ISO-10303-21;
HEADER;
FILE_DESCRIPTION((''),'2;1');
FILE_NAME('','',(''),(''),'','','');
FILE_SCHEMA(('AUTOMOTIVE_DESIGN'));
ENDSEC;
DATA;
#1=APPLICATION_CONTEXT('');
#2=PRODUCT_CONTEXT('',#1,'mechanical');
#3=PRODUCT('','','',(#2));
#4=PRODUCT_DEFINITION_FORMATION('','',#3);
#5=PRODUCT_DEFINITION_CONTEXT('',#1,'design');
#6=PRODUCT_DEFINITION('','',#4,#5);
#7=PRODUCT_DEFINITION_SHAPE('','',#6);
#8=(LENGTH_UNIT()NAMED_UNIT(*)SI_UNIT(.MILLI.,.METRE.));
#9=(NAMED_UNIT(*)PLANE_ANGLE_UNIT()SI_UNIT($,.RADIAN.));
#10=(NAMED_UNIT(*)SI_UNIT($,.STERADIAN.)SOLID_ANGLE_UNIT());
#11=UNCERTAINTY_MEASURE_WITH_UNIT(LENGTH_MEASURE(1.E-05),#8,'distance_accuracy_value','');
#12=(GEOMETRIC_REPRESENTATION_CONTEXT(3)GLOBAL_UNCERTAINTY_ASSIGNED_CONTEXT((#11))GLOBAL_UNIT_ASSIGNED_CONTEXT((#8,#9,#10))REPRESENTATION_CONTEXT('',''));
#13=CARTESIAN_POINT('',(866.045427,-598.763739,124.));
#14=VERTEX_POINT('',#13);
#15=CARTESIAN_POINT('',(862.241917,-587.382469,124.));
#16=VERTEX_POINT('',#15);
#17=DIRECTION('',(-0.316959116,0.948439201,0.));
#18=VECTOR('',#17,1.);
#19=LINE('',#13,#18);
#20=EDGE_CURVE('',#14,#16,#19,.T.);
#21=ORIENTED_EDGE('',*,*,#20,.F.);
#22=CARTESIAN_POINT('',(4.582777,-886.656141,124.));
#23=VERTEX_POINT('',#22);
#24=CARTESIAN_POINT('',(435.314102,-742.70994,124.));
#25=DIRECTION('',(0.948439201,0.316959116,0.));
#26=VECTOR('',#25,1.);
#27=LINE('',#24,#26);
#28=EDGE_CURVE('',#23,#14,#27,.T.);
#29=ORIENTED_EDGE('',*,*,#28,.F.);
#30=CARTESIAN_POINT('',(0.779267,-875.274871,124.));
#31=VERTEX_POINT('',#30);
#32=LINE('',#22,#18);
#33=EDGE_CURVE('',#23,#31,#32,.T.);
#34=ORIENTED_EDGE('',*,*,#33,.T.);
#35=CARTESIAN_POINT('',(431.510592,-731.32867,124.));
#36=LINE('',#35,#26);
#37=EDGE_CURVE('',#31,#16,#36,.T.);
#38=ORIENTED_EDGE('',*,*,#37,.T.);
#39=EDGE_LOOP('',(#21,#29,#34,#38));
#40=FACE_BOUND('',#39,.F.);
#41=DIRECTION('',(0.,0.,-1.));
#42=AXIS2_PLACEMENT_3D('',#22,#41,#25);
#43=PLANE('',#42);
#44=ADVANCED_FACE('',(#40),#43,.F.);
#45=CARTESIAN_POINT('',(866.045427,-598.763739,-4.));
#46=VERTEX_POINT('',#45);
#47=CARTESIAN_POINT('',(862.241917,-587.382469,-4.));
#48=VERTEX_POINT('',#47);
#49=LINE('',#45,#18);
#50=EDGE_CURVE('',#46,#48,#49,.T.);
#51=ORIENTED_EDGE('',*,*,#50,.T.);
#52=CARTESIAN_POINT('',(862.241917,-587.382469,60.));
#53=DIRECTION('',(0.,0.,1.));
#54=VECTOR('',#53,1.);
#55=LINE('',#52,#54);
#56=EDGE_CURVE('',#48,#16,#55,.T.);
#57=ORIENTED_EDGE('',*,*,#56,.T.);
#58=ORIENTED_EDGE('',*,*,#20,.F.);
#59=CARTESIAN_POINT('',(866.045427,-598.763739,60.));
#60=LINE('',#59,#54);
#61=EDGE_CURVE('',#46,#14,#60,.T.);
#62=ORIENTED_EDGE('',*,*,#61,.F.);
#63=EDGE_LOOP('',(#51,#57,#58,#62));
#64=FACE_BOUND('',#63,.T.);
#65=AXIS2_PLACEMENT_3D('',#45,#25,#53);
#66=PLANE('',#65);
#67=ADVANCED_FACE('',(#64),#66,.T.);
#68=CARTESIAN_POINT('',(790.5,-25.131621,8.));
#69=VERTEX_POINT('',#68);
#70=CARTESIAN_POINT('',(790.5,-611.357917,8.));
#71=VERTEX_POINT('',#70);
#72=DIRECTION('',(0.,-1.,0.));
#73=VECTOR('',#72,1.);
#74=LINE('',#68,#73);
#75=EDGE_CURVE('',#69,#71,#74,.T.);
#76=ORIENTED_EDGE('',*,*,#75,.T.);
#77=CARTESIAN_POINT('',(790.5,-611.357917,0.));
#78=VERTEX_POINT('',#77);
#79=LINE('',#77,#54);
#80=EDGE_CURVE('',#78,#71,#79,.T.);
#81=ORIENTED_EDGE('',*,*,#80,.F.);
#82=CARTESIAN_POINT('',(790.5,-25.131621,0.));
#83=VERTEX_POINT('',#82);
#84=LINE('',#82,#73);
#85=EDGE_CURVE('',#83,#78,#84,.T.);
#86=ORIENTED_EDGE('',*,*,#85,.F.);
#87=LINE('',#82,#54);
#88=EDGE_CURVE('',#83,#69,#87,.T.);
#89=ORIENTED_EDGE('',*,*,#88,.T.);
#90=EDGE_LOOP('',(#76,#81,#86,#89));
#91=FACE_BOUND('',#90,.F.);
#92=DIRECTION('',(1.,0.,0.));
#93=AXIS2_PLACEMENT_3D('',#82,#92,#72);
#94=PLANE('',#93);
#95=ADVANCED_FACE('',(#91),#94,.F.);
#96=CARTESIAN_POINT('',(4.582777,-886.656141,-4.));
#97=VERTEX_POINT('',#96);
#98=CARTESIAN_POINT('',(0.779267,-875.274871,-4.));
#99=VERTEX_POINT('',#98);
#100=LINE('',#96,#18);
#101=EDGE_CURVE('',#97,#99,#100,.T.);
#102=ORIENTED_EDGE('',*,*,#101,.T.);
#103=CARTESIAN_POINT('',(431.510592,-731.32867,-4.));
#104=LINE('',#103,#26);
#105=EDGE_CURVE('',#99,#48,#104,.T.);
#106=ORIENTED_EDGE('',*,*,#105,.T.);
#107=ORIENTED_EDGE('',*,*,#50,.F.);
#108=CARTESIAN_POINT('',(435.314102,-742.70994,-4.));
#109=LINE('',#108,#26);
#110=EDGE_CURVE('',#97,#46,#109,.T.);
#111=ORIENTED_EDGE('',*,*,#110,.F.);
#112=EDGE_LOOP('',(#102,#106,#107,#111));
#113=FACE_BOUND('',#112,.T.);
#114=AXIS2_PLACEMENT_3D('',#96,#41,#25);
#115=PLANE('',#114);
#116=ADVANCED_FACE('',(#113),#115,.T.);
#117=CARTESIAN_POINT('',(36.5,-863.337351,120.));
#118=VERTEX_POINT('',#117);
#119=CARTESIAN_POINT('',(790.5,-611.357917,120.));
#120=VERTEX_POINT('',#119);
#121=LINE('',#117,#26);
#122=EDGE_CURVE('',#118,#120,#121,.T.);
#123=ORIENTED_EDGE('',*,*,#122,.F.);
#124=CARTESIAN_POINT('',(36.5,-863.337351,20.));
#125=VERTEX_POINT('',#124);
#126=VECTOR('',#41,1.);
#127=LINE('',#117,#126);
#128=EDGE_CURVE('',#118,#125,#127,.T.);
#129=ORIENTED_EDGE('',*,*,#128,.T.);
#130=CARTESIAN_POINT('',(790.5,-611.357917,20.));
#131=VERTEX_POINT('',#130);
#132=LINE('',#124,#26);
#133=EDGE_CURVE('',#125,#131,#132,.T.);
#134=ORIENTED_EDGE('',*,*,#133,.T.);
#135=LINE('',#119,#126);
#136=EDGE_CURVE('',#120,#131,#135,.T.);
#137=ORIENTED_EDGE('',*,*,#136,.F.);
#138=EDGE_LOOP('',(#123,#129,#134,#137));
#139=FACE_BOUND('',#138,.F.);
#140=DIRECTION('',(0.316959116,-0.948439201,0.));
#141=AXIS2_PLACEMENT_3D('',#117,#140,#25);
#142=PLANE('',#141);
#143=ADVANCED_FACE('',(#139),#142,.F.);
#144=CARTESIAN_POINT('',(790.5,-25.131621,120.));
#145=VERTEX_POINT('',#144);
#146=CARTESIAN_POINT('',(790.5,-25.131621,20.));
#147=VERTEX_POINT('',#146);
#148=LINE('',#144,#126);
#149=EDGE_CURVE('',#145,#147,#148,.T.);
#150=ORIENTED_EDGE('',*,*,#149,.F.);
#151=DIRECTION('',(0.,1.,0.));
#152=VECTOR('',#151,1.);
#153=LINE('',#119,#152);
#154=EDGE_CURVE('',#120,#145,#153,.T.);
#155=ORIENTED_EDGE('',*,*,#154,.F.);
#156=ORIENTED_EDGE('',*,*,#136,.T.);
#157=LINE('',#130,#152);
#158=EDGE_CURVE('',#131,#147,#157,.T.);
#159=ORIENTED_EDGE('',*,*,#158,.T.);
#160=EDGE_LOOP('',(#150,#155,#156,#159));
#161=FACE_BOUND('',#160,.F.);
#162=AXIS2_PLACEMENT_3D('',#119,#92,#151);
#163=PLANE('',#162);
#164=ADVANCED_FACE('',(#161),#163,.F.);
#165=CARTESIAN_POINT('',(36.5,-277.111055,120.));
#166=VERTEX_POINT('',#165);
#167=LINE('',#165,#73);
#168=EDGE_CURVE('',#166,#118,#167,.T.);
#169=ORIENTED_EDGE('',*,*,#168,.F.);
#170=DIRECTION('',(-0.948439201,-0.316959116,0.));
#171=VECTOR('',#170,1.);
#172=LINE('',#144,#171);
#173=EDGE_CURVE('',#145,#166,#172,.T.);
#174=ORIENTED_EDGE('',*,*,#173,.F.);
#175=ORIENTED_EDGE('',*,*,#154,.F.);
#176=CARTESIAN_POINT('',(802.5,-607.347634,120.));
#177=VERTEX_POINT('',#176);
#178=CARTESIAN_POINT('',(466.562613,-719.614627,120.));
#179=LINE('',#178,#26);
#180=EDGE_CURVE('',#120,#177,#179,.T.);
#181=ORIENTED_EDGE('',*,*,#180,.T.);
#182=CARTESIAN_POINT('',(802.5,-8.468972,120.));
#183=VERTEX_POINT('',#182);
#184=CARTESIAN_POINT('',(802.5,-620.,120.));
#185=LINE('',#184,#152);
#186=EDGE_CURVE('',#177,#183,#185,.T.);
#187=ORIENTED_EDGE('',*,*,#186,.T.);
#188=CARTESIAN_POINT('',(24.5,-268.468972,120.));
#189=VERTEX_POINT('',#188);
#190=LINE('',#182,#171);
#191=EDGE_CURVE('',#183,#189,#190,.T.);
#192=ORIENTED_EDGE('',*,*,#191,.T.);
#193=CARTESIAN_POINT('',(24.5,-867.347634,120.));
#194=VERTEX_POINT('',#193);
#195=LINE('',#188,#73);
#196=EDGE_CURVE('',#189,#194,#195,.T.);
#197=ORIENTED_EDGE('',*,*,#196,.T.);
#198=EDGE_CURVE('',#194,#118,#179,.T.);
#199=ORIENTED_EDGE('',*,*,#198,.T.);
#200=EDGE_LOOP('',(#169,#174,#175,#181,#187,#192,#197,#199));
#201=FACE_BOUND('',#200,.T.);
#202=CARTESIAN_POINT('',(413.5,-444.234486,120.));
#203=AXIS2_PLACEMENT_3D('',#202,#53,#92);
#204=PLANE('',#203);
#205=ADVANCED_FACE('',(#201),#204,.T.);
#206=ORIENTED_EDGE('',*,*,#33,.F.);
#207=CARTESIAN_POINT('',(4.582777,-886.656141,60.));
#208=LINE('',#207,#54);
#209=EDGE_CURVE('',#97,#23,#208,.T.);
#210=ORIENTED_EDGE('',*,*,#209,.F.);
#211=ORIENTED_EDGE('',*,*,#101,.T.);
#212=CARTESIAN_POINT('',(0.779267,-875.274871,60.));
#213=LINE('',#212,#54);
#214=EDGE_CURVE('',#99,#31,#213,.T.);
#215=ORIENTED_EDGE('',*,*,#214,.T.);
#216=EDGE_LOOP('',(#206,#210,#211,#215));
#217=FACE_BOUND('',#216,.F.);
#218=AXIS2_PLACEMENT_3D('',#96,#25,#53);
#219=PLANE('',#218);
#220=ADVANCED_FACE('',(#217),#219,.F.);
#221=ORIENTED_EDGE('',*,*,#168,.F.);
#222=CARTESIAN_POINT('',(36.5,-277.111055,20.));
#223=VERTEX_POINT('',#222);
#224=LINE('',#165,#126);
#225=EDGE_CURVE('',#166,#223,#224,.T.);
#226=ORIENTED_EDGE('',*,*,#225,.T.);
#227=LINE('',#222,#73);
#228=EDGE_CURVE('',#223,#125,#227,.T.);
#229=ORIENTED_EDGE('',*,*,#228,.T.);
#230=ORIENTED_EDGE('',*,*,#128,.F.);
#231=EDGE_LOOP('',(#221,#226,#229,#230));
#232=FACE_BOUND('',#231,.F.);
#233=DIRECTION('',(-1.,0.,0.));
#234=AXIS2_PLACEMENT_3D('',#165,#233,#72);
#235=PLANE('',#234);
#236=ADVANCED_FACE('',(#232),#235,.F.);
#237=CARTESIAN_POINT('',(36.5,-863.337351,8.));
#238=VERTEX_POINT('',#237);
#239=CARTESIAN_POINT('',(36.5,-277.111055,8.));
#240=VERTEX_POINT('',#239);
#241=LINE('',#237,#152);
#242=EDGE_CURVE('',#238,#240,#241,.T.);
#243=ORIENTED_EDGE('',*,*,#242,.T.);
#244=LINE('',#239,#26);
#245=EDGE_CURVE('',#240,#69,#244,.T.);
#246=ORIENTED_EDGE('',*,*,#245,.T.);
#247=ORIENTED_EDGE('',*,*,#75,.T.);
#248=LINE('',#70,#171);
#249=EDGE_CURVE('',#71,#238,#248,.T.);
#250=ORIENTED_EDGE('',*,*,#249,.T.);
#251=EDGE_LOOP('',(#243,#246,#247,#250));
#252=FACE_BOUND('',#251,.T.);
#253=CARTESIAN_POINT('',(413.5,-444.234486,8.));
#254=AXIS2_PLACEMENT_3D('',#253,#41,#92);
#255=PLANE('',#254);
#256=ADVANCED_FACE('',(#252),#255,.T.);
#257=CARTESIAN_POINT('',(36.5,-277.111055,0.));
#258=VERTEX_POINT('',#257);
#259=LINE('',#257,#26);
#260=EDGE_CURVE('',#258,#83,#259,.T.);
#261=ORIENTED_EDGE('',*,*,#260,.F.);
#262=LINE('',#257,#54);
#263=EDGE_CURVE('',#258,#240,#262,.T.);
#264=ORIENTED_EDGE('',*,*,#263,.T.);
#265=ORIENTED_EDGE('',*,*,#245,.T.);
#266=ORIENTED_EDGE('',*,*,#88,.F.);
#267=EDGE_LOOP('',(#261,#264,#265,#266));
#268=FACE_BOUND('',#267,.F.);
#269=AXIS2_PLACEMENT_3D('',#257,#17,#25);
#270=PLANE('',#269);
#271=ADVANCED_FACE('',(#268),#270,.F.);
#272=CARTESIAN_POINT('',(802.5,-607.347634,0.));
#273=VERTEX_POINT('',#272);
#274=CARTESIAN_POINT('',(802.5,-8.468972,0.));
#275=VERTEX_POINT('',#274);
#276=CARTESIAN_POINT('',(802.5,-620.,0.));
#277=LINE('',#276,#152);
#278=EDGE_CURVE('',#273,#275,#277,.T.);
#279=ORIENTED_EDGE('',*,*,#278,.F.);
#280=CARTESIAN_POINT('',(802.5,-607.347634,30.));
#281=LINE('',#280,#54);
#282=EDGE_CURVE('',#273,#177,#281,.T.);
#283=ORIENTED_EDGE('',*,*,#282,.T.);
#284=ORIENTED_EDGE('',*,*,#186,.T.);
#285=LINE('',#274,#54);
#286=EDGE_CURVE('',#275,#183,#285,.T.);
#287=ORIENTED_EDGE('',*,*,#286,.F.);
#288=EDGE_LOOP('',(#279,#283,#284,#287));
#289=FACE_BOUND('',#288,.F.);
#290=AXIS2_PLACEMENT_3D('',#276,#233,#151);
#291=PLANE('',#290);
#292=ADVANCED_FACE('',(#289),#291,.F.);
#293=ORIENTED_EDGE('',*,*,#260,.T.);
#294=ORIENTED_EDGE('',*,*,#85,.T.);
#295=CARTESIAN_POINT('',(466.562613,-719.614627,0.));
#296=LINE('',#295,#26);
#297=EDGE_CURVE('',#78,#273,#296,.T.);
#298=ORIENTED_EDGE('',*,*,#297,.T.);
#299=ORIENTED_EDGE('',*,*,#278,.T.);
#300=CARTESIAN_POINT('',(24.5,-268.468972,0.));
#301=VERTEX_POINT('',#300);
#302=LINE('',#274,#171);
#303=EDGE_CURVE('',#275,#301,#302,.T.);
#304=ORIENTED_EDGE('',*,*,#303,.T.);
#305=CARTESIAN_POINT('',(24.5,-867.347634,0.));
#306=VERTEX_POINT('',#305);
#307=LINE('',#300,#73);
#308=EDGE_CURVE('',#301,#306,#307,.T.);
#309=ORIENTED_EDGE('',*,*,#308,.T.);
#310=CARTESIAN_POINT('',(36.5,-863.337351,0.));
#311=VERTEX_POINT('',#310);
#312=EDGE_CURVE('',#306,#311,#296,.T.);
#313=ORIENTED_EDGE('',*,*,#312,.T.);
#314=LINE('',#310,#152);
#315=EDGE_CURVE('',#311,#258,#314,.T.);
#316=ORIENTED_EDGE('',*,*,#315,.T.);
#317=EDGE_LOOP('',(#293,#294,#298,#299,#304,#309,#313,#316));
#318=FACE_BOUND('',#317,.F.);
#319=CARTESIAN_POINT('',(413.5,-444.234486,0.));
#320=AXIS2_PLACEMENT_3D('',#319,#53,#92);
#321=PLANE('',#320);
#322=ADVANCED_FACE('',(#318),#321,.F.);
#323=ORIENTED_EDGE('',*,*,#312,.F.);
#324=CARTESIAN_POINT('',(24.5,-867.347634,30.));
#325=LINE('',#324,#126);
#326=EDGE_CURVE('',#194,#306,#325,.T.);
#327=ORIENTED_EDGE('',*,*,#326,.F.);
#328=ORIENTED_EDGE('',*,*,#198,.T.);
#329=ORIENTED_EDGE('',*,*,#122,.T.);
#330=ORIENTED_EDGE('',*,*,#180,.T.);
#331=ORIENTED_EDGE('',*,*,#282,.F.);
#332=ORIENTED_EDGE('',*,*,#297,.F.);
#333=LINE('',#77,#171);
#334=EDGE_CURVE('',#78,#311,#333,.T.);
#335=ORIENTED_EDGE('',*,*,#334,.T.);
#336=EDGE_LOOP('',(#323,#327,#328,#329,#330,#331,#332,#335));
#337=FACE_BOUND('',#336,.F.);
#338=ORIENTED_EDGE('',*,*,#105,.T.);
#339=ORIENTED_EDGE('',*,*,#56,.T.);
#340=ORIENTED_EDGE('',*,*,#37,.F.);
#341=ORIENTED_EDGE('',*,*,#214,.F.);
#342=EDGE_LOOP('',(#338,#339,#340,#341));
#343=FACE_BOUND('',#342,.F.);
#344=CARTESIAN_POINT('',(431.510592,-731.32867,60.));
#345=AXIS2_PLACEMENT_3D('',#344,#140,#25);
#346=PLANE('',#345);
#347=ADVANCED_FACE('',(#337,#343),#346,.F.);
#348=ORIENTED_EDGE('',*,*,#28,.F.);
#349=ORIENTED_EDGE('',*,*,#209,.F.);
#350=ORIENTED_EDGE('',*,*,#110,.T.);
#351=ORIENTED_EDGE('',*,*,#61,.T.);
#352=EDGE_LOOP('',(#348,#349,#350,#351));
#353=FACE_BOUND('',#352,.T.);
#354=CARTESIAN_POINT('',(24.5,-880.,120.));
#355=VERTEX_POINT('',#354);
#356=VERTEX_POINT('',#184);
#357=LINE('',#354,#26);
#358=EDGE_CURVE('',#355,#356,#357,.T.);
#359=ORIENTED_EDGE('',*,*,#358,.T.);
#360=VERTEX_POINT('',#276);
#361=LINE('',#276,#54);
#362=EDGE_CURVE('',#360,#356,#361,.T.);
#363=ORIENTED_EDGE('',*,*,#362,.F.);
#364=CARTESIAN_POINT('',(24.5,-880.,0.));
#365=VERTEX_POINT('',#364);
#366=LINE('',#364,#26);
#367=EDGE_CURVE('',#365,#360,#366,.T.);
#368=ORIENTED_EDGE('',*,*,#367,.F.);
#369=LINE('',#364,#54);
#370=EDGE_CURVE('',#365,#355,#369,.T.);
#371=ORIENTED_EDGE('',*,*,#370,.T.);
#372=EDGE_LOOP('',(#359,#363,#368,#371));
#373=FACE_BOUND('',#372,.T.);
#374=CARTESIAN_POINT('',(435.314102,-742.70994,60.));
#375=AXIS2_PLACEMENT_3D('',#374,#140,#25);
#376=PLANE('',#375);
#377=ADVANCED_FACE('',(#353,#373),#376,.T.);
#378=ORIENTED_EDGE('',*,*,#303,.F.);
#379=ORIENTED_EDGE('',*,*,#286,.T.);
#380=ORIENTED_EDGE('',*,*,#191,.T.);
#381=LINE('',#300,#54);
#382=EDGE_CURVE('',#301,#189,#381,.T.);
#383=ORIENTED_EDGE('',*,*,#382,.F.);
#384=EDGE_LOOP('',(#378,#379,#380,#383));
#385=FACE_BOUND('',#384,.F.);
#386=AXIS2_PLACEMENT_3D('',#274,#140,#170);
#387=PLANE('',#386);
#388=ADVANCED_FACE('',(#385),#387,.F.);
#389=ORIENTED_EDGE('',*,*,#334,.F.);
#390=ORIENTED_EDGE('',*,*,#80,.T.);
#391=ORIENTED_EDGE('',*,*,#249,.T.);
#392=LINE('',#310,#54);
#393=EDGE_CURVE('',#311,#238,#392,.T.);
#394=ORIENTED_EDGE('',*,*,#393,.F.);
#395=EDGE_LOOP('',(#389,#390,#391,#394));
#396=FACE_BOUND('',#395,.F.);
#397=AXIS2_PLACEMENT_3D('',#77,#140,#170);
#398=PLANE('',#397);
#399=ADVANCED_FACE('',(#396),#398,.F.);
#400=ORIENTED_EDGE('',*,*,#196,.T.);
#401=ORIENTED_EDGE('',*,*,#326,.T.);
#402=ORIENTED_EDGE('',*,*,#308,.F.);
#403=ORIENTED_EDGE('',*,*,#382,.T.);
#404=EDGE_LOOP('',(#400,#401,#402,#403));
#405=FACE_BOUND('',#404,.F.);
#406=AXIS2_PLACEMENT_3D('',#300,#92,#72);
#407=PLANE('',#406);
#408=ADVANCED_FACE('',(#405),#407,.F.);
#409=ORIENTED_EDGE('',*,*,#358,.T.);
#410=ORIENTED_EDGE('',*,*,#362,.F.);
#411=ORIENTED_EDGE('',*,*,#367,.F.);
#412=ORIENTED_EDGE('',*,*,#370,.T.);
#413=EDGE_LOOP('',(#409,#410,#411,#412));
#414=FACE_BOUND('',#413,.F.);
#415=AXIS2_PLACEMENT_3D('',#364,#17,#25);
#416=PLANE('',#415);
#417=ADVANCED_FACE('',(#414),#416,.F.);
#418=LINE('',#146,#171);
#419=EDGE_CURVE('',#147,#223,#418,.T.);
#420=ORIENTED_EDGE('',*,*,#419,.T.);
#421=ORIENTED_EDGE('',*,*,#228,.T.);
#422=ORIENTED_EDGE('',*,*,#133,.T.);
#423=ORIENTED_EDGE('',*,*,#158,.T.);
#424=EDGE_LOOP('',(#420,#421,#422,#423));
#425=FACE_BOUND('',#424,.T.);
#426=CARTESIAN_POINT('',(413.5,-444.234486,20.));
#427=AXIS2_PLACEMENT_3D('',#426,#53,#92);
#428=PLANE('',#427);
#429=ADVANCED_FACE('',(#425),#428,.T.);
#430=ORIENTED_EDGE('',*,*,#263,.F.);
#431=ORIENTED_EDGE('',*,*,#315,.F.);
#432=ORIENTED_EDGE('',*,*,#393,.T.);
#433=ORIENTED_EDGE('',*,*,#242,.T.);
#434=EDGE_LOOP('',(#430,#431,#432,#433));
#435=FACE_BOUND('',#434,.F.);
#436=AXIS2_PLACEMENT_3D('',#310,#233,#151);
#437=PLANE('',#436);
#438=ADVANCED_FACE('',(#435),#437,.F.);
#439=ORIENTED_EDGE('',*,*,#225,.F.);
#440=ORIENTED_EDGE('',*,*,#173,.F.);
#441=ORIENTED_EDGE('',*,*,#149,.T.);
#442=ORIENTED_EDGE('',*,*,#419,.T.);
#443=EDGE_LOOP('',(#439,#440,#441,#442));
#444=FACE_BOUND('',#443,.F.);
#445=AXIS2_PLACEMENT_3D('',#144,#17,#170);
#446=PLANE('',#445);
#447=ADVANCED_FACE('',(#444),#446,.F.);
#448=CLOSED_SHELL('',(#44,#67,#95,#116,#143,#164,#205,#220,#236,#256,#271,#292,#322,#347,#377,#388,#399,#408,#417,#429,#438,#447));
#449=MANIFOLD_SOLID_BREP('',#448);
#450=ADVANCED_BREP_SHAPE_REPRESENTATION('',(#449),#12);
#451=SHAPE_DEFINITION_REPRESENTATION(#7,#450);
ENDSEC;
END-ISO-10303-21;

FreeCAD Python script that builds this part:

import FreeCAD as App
import Part
import Sketcher
from FreeCAD import Vector


def add_polygon(sketch, points):
    """Adds a closed chain of lines whose ends are joined by coincident constraints."""
    first, n = sketch.GeometryCount, len(points)
    for a, b in zip(points, points[1:] + points[:1]):
        sketch.addGeometry(Part.LineSegment(App.Vector(*a, 0), App.Vector(*b, 0)), False)
    for i in range(n):
        sketch.addConstraint(Sketcher.Constraint("Coincident", first + i, 2, first + (i + 1) % n, 1))

doc = App.newDocument("Part")
body = doc.addObject("PartDesign::Body", "Body")

# Sketch on XY plane
sketch1 = body.newObject("Sketcher::SketchObject", "Sketch")
sketch1.AttachmentSupport = (doc.getObject("XY_Plane"), [""])
sketch1.MapMode = "FlatFace"
add_polygon(sketch1, [(802, -8), (24, -268), (24, -880), (802, -620)])  # lines 0-3
sketch1.addConstraint([
    Sketcher.Constraint("Vertical", 1),
    Sketcher.Constraint("Vertical", 3),
    Sketcher.Constraint("Parallel", 0, 2),
    Sketcher.Constraint("DistanceY", 1, 2, -1, 1, 880.0),
    Sketcher.Constraint("DistanceY", 2, 2, -1, 1, 620.0),
    Sketcher.Constraint("DistanceX", 1, 2, 2, 2, 778.0),
    Sketcher.Constraint("DistanceX", -1, 1, 0, 2, 24.5),
    Sketcher.Constraint("DistanceY", 1, 2, 1, 1, 611.531028),
])
pad1 = body.newObject("PartDesign::Pad", "Pad")
pad1.Profile = sketch1
pad1.Length = 120

# Sketch on XY plane
sketch2 = body.newObject("Sketcher::SketchObject", "Sketch001")
sketch2.AttachmentSupport = (doc.getObject("XY_Plane"), [""])
sketch2.MapMode = "FlatFace"
add_polygon(sketch2, [(36, -277), (790, -25), (790, -611), (36, -863)])  # lines 0-3
sketch2.addConstraint([
    Sketcher.Constraint("Vertical", 1),
    Sketcher.Constraint("Vertical", 3),
    Sketcher.Constraint("Parallel", 0, 2),
    Sketcher.Constraint("DistanceX", 2, 2, 1, 2, 754.0),
    Sketcher.Constraint("DistanceX", -1, 1, 0, 2, 790.5),
    Sketcher.Constraint("DistanceY", 1, 2, 1, 1, 586.226296),
    Sketcher.Constraint("DistanceY", 0, 2, -1, 1, 25.131621),
    Sketcher.Constraint("DistanceY", 2, 2, -1, 1, 863.337351),
])
pocket1 = body.newObject("PartDesign::Pocket", "Pocket")
pocket1.Profile = sketch2
pocket1.Length = 8
pocket1.Reversed = True

# Sketch on XY plane
sketch3 = body.newObject("Sketcher::SketchObject", "Sketch002")
sketch3.AttachmentSupport = (doc.getObject("XY_Plane"), [""])
sketch3.MapMode = "FlatFace"
sketch3.AttachmentOffset = App.Placement(Vector(0, 0, 120), App.Rotation())
add_polygon(sketch3, [(790, -611), (790, -25), (36, -277), (36, -863)])  # lines 0-3
sketch3.addConstraint([
    Sketcher.Constraint("Vertical", 0),
    Sketcher.Constraint("Vertical", 2),
    Sketcher.Constraint("Parallel", 1, 3),
    Sketcher.Constraint("DistanceX", 1, 2, 0, 2, 754.0),
    Sketcher.Constraint("DistanceX", -1, 1, 0, 2, 790.5),
    Sketcher.Constraint("DistanceY", 0, 1, 0, 2, 586.226296),
    Sketcher.Constraint("DistanceY", 0, 2, -1, 1, 25.131621),
    Sketcher.Constraint("DistanceY", 2, 2, -1, 1, 863.337351),
])
pocket2 = body.newObject("PartDesign::Pocket", "Pocket001")
pocket2.Profile = sketch3
pocket2.Length = 100

# Sketch on an angled plane
sketch4 = body.newObject("Sketcher::SketchObject", "Sketch003")
sketch4.Placement = App.Placement(Vector(267.003822, -798.957592, 0), App.Rotation(Vector(0.948439201, 0.316959116, 0), Vector(0, 0, 0.999999999), Vector(0.316959116, -0.948439201, 0), "ZXY"))
add_polygon(sketch4, [(-277, 124), (-277, -4), (632, -4), (632, 124)])  # lines 0-3
sketch4.addConstraint([
    Sketcher.Constraint("Vertical", 0),
    Sketcher.Constraint("Horizontal", 1),
    Sketcher.Constraint("Vertical", 2),
    Sketcher.Constraint("Horizontal", 3),
    Sketcher.Constraint("DistanceY", 0, 2, 0, 1, 128.0),
    Sketcher.Constraint("DistanceY", 0, 2, -1, 1, 4.0),
    Sketcher.Constraint("DistanceX", 1, 1, 1, 2, 908.295068),
    Sketcher.Constraint("DistanceX", 0, 2, -1, 1, 276.687262),
])
pad2 = body.newObject("PartDesign::Pad", "Pad001")
pad2.Profile = sketch4
pad2.Length = 12
pad2.Reversed = True

doc.recompute()
